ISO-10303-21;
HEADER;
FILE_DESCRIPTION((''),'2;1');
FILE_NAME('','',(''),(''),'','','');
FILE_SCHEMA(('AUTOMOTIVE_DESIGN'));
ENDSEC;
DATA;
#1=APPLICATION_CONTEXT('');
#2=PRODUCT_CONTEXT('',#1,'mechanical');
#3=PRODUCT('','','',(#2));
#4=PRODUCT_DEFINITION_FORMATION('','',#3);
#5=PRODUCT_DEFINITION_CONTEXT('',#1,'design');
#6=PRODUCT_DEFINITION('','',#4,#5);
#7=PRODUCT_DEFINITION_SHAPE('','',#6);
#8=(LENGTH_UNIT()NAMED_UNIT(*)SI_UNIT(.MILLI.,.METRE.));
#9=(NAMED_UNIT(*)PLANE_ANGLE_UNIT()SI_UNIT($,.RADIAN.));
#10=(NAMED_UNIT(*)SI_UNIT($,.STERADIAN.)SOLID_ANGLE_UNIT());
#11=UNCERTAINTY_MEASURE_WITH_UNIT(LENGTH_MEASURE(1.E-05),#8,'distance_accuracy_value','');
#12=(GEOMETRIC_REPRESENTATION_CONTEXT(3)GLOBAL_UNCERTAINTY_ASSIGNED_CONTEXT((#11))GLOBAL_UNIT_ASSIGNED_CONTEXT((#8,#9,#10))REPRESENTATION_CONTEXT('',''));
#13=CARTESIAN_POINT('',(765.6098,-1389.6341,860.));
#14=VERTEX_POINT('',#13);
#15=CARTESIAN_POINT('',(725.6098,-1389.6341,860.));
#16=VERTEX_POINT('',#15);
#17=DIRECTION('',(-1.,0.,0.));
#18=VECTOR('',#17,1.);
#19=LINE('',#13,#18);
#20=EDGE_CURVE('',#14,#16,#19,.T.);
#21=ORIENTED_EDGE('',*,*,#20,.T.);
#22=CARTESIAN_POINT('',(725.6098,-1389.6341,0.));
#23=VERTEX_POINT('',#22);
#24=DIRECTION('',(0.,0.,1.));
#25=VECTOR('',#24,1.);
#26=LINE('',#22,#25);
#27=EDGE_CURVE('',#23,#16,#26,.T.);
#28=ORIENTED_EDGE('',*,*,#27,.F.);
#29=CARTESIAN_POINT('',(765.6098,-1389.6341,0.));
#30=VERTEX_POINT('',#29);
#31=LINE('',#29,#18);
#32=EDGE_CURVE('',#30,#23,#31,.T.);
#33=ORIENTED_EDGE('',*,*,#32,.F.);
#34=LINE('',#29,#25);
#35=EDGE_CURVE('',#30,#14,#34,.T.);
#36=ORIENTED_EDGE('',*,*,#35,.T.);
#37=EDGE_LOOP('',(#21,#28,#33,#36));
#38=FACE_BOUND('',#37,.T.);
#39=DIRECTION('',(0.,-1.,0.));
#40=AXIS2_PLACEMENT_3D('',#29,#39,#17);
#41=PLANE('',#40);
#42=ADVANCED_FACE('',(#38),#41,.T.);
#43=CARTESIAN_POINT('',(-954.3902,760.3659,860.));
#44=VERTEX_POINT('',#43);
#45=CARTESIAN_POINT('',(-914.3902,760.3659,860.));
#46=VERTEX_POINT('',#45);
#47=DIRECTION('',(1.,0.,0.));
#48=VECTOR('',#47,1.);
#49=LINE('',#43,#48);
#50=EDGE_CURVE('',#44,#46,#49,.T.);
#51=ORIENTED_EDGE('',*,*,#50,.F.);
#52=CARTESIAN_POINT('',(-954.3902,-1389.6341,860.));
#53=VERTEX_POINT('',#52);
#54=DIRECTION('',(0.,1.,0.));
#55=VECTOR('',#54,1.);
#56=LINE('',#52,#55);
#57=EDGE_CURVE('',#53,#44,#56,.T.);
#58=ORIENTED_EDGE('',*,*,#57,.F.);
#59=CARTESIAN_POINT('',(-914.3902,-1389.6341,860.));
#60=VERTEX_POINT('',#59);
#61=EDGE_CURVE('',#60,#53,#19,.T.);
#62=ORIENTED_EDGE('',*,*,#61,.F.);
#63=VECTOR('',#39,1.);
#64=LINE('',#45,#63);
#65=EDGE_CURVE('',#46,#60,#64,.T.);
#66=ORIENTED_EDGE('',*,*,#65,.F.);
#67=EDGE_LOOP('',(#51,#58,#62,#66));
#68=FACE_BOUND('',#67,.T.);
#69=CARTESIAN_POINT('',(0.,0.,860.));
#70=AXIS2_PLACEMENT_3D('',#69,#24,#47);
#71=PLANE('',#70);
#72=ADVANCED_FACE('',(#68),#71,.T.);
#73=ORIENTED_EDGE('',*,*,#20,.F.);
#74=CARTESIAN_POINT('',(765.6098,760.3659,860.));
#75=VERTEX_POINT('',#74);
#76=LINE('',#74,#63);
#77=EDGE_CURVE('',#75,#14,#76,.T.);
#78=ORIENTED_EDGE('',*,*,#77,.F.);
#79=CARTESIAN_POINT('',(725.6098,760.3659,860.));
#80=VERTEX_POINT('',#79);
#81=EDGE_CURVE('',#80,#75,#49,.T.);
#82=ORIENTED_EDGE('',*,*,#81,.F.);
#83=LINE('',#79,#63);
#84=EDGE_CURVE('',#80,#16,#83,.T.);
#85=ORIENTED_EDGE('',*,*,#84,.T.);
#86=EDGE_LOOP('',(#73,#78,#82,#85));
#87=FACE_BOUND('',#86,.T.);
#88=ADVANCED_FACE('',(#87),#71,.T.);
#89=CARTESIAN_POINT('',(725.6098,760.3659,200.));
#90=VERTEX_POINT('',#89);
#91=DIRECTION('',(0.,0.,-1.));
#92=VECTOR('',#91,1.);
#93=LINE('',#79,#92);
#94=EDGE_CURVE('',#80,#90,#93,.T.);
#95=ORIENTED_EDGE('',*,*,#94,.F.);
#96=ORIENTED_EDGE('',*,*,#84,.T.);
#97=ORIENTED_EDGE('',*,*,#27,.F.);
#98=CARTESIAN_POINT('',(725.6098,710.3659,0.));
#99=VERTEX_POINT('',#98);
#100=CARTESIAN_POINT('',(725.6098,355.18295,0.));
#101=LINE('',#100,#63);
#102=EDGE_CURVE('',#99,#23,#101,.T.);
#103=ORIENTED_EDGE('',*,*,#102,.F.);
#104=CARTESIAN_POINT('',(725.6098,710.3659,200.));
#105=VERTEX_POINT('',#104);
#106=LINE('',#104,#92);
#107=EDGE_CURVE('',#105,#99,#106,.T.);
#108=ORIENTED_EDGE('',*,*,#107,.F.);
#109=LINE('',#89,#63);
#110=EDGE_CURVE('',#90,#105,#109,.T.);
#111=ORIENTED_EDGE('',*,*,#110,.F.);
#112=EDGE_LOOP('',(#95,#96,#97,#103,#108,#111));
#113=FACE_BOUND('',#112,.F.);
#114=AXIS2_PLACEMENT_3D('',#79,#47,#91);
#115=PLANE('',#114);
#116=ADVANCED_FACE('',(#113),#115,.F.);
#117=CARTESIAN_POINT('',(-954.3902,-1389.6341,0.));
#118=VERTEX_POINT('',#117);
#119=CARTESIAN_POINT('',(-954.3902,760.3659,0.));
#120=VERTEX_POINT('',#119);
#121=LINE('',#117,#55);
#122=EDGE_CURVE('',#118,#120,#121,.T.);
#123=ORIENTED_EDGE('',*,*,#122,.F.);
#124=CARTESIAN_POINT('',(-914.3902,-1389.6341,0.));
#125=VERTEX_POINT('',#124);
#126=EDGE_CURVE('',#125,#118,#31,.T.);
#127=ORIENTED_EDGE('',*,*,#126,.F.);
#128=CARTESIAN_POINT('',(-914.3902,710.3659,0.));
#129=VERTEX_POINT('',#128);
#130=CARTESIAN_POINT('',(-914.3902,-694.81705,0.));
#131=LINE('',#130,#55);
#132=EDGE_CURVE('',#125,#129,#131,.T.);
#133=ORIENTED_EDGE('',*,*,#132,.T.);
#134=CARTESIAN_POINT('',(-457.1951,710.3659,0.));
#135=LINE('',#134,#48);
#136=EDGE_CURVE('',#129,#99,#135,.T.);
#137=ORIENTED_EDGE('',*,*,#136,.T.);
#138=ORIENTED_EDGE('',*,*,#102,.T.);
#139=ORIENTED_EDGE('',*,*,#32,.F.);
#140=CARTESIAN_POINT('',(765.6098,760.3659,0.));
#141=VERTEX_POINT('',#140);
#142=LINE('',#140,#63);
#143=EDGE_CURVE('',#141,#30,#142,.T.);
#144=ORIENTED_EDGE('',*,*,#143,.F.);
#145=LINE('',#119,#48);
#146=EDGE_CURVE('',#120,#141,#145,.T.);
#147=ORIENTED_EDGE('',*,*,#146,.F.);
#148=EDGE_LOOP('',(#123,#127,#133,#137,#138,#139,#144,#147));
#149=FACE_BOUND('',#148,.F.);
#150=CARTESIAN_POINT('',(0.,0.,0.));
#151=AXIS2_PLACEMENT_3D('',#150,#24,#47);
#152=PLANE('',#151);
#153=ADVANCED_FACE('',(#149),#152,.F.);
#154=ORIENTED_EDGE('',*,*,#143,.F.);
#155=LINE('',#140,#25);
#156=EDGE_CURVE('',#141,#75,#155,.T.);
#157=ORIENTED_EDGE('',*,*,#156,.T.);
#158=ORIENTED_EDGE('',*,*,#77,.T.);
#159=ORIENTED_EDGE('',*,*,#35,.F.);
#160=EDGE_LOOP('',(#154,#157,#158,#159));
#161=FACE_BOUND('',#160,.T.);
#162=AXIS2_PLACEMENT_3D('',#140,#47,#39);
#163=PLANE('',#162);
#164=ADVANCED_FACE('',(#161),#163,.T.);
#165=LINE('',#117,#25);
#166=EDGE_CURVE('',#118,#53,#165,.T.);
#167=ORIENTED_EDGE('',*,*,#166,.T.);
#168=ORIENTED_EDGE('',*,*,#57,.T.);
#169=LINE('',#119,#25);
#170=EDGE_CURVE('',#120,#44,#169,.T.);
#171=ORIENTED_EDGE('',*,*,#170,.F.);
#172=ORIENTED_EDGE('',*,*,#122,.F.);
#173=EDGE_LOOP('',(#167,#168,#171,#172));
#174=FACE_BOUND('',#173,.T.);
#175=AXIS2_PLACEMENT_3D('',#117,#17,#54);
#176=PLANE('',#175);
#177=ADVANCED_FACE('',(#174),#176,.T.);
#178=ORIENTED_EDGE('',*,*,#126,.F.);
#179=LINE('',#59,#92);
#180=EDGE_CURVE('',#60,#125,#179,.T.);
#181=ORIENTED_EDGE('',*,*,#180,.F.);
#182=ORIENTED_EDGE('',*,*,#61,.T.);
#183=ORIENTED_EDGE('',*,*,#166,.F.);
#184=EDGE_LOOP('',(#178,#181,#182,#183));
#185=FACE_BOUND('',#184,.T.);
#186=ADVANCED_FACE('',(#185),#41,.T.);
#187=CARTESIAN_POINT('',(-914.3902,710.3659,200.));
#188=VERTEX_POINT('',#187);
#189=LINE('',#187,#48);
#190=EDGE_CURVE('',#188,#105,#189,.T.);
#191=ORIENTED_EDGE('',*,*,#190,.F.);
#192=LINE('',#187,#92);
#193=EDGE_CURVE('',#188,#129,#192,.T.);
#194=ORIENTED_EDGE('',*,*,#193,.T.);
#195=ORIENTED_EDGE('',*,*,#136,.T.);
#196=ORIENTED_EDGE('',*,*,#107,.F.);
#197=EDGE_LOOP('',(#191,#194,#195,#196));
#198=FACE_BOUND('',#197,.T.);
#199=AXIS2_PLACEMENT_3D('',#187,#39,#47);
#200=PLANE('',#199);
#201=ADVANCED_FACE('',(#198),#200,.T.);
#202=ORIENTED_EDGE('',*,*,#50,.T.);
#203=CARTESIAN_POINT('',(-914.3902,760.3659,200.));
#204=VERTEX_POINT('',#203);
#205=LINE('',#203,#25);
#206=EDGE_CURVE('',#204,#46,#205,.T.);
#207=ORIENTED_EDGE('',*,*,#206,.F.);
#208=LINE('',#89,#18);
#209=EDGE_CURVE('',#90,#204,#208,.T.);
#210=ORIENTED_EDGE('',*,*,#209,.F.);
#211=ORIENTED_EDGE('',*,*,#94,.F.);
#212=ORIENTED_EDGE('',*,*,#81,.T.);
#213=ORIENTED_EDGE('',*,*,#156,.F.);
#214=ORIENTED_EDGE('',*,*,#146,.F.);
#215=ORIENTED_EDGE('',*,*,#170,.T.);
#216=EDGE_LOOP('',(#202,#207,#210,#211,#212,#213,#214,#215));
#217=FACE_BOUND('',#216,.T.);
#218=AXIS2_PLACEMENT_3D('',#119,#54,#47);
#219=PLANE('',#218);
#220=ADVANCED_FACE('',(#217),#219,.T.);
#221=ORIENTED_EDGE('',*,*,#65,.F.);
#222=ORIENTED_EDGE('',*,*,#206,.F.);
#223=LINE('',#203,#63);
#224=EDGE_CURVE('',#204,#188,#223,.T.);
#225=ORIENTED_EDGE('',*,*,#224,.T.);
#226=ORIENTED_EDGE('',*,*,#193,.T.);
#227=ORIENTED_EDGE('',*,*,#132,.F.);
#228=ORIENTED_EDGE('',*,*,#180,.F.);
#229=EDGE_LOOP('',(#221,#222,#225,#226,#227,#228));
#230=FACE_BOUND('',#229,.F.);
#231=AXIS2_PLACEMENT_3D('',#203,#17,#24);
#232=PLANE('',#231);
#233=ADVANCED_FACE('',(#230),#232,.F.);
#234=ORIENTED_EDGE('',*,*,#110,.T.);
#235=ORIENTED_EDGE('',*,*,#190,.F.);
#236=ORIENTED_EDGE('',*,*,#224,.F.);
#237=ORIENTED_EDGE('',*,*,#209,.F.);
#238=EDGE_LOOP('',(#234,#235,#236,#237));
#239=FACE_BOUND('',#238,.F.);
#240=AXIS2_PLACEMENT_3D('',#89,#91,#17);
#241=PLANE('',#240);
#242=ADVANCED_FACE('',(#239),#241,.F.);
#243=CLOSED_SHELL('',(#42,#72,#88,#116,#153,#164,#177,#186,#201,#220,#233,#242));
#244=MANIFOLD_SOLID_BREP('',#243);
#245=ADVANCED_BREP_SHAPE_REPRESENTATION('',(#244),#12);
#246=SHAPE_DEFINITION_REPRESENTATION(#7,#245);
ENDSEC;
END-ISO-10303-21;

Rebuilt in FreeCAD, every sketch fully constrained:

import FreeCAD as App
import Part
import Sketcher

V = App.Vector
Q = App.Units.Quantity

doc = App.newDocument("Part")
params = doc.addObject("Spreadsheet::Sheet", "Params")
for row, (alias, value) in enumerate([
    ("sketch1_width", "1720 mm"),
    ("sketch1_height", "2150 mm"),
    ("pad1_length", "860 mm"),
    ("sketch2_width", "1640 mm"),
    ("sketch2_height", "660 mm"),
    ("sketch3_width", "1640 mm"),
    ("sketch3_height", "2100 mm"),
    ("pocket2_length", "1000 mm"),
], start=1):
    params.set(f"A{row}", alias)
    params.set(f"B{row}", "=" + value)
    params.setAlias(f"B{row}", alias)

body = doc.addObject("PartDesign::Body", "Body")

sketch1 = doc.addObject("Sketcher::SketchObject", "Sketch")
body.addObject(sketch1)
sketch1.AttachmentSupport = (doc.XY_Plane, [""])
sketch1.MapMode = "FlatFace"
sketch1.addGeometry([
    Part.LineSegment(V(765.6098, 760.3659, 0), V(-954.3902, 760.3659, 0)),
    Part.LineSegment(V(-954.3902, 760.3659, 0), V(-954.3902, -1389.6341, 0)),
    Part.LineSegment(V(-954.3902, -1389.6341, 0), V(765.6098, -1389.6341, 0)),
    Part.LineSegment(V(765.6098, -1389.6341, 0), V(765.6098, 760.3659, 0)),
], False)
sketch1.addConstraint([
    Sketcher.Constraint("Coincident", 0, 2, 1, 1),
    Sketcher.Constraint("Coincident", 1, 2, 2, 1),
    Sketcher.Constraint("Coincident", 2, 2, 3, 1),
    Sketcher.Constraint("Coincident", 3, 2, 0, 1),
    Sketcher.Constraint("Horizontal", 0),
    Sketcher.Constraint("Vertical", 1),
    Sketcher.Constraint("Horizontal", 2),
    Sketcher.Constraint("Vertical", 3),
    Sketcher.Constraint("DistanceX", 0, 2, 0, 1, Q("1720 mm")),
    Sketcher.Constraint("DistanceY", 1, 2, 1, 1, Q("2150 mm")),
    Sketcher.Constraint("DistanceY", -1, 1, 0, 2, Q("760.366 mm")),
    Sketcher.Constraint("DistanceX", 0, 2, -1, 1, Q("954.3902 mm")),
])
sketch1.setExpression("Constraints[8]", "Params.sketch1_width")
sketch1.setExpression("Constraints[9]", "Params.sketch1_height")
pad1 = doc.addObject("PartDesign::Pad", "Pad")
body.addObject(pad1)
pad1.Profile = sketch1
pad1.setExpression("Length", "Params.pad1_length")

sketch2 = doc.addObject("Sketcher::SketchObject", "Sketch001")
body.addObject(sketch2)
sketch2.AttachmentSupport = (doc.XZ_Plane, [""])
sketch2.MapMode = "FlatFace"
sketch2.AttachmentOffset = App.Placement(V(0, 0, -760.3659), App.Rotation())
sketch2.addGeometry([
    Part.LineSegment(V(-914.3902, 860, 0), V(725.6098, 860, 0)),
    Part.LineSegment(V(725.6098, 860, 0), V(725.6098, 200, 0)),
    Part.LineSegment(V(725.6098, 200, 0), V(-914.3902, 200, 0)),
    Part.LineSegment(V(-914.3902, 200, 0), V(-914.3902, 860, 0)),
], False)
sketch2.addConstraint([
    Sketcher.Constraint("Coincident", 0, 2, 1, 1),
    Sketcher.Constraint("Coincident", 1, 2, 2, 1),
    Sketcher.Constraint("Coincident", 2, 2, 3, 1),
    Sketcher.Constraint("Coincident", 3, 2, 0, 1),
    Sketcher.Constraint("Horizontal", 0),
    Sketcher.Constraint("Vertical", 1),
    Sketcher.Constraint("Horizontal", 2),
    Sketcher.Constraint("Vertical", 3),
    Sketcher.Constraint("DistanceY", -1, 1, 1, 2, Q("200 mm")),
    Sketcher.Constraint("DistanceX", 0, 1, 0, 2, Q("1640 mm")),
    Sketcher.Constraint("DistanceY", 1, 2, 1, 1, Q("660 mm")),
    Sketcher.Constraint("DistanceX", -1, 1, 0, 2, Q("725.6098 mm")),
])
sketch2.setExpression("Constraints[9]", "Params.sketch2_width")
sketch2.setExpression("Constraints[10]", "Params.sketch2_height")
pocket1 = doc.addObject("PartDesign::Pocket", "Pocket")
body.addObject(pocket1)
pocket1.Profile = sketch2
pocket1.Type = "ThroughAll"
pocket1.Reversed = True

sketch3 = doc.addObject("Sketcher::SketchObject", "Sketch002")
body.addObject(sketch3)
sketch3.AttachmentSupport = (doc.XY_Plane, [""])
sketch3.MapMode = "FlatFace"
sketch3.AttachmentOffset = App.Placement(V(0, 0, 200), App.Rotation())
sketch3.addGeometry([
    Part.LineSegment(V(-914.3902, 710.3659, 0), V(-914.3902, -1389.6341, 0)),
    Part.LineSegment(V(-914.3902, -1389.6341, 0), V(725.6098, -1389.6341, 0)),
    Part.LineSegment(V(725.6098, -1389.6341, 0), V(725.6098, 710.3659, 0)),
    Part.LineSegment(V(725.6098, 710.3659, 0), V(-914.3902, 710.3659, 0)),
], False)
sketch3.addConstraint([
    Sketcher.Constraint("Coincident", 0, 2, 1, 1),
    Sketcher.Constraint("Coincident", 1, 2, 2, 1),
    Sketcher.Constraint("Coincident", 2, 2, 3, 1),
    Sketcher.Constraint("Coincident", 3, 2, 0, 1),
    Sketcher.Constraint("Vertical", 0),
    Sketcher.Constraint("Horizontal", 1),
    Sketcher.Constraint("Vertical", 2),
    Sketcher.Constraint("Horizontal", 3),
    Sketcher.Constraint("DistanceX", 1, 1, 1, 2, Q("1640 mm")),
    Sketcher.Constraint("DistanceY", 0, 2, 0, 1, Q("2100 mm")),
    Sketcher.Constraint("DistanceY", 0, 2, -1, 1, Q("1389.634 mm")),
    Sketcher.Constraint("DistanceX", 0, 2, -1, 1, Q("914.3902 mm")),
])
sketch3.setExpression("Constraints[8]", "Params.sketch3_width")
sketch3.setExpression("Constraints[9]", "Params.sketch3_height")
pocket2 = doc.addObject("PartDesign::Pocket", "Pocket001")
body.addObject(pocket2)
pocket2.Profile = sketch3
pocket2.setExpression("Length", "Params.pocket2_length")

doc.recompute()
